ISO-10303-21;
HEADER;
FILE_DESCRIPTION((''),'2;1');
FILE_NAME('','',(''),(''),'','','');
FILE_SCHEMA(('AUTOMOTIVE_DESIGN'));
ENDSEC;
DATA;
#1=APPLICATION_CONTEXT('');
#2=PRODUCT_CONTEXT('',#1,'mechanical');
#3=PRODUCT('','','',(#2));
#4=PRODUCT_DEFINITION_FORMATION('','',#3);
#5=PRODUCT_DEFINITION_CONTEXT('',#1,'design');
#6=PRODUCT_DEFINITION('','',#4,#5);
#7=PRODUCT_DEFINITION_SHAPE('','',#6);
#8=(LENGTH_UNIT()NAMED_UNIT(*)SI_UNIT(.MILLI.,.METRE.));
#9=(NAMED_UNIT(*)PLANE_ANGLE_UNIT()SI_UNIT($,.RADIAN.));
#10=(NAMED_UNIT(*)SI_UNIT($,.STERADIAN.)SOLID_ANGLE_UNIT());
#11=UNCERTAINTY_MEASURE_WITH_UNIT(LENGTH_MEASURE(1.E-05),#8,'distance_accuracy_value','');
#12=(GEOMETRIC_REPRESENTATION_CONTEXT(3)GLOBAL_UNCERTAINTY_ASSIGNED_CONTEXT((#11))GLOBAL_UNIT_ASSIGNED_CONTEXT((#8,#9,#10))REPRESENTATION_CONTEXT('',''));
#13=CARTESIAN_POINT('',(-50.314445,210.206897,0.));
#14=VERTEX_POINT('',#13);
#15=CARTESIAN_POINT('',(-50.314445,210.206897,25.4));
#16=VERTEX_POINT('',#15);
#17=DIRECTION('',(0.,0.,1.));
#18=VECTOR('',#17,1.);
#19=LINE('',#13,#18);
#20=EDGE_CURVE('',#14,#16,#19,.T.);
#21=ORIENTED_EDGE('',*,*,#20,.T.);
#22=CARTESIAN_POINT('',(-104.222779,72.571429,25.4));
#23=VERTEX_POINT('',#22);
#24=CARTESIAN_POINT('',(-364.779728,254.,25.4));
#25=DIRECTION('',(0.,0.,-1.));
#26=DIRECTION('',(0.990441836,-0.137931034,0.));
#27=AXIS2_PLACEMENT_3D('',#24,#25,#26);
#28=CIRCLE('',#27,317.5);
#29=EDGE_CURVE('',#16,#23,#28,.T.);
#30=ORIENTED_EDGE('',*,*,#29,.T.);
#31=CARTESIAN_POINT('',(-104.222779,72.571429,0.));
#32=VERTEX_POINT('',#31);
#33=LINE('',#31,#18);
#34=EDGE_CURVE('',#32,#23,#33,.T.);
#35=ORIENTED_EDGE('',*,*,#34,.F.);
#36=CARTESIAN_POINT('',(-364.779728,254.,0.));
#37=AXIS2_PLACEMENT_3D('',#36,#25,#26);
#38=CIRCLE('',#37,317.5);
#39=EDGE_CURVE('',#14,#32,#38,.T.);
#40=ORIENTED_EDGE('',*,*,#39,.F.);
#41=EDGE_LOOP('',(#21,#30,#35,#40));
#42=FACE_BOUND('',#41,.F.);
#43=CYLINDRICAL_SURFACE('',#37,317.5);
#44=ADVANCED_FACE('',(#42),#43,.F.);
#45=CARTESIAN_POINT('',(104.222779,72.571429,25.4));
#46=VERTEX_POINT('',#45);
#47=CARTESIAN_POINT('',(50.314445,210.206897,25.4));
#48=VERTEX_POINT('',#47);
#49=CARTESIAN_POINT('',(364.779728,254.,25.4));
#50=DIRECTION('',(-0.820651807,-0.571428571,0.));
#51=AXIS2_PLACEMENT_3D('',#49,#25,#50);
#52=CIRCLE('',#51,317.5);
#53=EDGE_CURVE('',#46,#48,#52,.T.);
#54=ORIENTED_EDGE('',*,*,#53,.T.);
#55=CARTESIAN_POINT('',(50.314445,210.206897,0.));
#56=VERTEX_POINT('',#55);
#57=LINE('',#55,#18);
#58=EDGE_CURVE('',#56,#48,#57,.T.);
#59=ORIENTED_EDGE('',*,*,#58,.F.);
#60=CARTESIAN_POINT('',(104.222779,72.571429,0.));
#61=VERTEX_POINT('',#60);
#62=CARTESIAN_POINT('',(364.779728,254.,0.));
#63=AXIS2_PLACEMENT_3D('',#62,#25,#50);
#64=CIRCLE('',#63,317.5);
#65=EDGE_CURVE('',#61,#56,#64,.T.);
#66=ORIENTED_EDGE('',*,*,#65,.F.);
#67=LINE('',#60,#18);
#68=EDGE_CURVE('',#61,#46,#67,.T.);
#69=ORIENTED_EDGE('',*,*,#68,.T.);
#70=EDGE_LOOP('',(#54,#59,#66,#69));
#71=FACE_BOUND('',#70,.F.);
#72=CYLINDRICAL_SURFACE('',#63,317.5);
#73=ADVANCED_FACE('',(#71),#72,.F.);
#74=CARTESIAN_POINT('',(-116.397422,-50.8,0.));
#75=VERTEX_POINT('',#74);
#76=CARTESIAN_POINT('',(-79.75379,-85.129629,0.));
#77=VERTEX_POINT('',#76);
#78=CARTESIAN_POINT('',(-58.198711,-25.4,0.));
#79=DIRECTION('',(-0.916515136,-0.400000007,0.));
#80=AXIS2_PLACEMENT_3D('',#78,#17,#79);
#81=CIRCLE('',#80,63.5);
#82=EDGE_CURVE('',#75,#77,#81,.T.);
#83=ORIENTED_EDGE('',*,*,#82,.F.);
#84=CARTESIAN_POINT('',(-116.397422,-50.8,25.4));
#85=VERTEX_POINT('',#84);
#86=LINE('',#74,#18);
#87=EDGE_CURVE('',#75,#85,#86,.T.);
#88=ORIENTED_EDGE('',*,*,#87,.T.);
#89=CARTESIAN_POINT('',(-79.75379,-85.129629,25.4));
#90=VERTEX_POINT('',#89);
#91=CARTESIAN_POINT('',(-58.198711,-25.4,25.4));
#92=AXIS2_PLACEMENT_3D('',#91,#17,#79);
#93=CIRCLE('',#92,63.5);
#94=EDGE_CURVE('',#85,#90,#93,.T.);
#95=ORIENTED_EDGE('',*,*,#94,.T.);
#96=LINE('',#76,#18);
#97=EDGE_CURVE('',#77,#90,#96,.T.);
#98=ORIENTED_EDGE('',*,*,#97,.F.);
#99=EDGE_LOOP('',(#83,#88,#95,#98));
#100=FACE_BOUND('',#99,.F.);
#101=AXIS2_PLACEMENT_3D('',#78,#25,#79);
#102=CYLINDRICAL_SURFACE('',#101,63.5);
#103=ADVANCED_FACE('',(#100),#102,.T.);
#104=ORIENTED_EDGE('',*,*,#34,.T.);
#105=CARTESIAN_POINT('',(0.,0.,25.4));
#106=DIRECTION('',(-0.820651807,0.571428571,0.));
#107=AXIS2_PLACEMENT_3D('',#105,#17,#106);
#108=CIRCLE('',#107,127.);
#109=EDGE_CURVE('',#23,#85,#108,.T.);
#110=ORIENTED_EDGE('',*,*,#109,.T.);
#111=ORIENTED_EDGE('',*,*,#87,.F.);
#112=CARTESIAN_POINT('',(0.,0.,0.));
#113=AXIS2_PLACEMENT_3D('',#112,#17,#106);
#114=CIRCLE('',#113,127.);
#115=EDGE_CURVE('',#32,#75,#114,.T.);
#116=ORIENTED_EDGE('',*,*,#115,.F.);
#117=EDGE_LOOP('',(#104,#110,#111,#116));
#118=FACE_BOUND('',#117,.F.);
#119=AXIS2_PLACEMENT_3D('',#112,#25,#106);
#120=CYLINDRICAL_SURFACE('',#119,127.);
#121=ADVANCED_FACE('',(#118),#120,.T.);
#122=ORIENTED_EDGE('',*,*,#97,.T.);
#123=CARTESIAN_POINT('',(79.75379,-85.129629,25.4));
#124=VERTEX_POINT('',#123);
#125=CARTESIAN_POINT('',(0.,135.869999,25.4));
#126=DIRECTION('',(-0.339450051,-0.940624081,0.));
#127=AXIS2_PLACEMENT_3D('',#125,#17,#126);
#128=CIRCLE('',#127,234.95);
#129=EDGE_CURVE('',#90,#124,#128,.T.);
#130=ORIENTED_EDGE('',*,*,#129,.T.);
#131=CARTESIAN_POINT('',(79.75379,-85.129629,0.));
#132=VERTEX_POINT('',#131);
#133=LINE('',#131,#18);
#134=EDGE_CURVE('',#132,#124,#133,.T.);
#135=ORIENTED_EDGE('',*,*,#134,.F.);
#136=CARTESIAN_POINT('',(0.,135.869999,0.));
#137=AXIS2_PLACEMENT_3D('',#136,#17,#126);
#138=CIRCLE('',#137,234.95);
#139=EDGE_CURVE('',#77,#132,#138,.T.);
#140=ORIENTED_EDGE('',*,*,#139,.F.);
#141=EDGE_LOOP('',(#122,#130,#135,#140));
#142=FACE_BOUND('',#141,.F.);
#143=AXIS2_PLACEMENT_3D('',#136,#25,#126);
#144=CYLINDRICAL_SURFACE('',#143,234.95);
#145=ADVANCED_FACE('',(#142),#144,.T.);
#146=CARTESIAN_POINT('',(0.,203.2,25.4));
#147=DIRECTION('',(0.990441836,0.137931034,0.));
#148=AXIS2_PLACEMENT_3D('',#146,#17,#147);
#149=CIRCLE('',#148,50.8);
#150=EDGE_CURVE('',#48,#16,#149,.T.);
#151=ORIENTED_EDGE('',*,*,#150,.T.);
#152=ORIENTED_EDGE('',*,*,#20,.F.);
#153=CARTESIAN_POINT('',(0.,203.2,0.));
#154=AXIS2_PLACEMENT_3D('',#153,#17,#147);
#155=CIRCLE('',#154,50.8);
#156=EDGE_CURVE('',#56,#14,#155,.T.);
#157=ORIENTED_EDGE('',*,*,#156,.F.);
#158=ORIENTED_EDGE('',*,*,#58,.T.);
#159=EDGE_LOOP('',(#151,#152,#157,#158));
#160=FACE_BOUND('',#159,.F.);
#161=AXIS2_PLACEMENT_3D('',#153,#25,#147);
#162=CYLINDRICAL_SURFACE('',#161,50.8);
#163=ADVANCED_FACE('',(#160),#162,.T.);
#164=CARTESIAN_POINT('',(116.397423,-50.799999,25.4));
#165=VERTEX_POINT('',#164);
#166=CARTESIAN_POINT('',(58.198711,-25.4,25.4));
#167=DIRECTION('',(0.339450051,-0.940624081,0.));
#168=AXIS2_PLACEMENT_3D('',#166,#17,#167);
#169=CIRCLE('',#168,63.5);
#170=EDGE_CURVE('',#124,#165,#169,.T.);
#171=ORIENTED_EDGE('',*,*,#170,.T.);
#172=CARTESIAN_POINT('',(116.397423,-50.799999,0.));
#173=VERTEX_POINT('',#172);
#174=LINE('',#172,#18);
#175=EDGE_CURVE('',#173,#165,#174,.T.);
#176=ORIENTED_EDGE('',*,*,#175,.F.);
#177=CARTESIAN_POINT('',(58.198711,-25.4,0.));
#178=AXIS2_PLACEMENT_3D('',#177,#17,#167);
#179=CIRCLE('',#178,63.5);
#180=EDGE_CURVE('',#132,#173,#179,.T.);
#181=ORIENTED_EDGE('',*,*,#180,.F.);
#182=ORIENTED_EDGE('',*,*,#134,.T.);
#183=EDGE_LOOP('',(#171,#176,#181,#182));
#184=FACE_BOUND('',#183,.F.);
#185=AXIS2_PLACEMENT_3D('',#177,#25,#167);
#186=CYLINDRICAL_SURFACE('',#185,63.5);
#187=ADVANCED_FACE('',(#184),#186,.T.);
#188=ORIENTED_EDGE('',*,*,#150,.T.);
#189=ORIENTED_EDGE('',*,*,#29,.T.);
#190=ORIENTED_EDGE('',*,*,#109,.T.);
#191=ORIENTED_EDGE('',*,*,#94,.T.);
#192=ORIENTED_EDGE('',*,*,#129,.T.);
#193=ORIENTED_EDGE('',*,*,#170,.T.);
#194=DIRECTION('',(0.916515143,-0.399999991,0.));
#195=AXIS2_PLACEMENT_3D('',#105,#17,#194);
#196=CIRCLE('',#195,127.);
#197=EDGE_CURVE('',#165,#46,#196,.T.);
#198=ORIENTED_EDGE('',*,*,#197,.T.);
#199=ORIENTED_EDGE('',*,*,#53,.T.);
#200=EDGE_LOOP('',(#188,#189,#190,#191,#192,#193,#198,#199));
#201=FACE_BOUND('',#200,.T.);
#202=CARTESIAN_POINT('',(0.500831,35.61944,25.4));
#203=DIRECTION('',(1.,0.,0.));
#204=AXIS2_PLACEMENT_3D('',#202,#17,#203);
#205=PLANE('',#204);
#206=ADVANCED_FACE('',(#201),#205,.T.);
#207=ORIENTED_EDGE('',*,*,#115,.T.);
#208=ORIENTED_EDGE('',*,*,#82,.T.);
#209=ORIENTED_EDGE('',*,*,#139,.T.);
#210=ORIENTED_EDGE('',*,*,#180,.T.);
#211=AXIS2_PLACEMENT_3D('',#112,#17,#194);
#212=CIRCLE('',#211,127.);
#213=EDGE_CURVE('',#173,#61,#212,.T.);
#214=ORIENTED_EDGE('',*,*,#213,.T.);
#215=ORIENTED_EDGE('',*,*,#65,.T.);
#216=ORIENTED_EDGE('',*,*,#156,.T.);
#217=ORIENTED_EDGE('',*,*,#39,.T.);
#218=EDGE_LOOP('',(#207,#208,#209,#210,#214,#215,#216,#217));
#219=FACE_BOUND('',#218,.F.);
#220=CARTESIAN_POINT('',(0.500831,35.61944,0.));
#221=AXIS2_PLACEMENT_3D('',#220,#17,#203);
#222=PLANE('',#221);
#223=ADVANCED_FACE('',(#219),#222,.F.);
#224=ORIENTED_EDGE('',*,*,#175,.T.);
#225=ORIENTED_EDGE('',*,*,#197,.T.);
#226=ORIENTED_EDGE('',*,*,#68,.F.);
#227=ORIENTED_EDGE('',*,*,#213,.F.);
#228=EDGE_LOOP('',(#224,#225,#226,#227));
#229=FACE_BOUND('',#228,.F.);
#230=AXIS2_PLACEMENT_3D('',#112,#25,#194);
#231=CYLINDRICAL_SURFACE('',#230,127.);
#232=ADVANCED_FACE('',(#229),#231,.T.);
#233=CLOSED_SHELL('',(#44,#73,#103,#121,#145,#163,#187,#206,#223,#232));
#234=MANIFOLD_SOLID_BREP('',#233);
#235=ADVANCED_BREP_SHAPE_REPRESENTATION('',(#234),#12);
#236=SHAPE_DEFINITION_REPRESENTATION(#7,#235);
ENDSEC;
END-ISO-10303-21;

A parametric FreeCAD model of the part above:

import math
import FreeCAD as App
import Part
import Sketcher
from FreeCAD import Vector
Q = App.Units.Quantity

doc = App.newDocument("Part")
body = doc.addObject("PartDesign::Body", "Body")

# Sketch on XY plane
sketch1 = doc.addObject("Sketcher::SketchObject", "Sketch")
body.addObject(sketch1)
sketch1.AttachmentSupport = (doc.XY_Plane, [""])
sketch1.MapMode = "FlatFace"
sketch1.addGeometry(Part.ArcOfCircle(Part.Circle(Vector(0, 0, 0), Vector(0, 0, 1), 127), math.radians(-24), math.radians(35)), False)
sketch1.addGeometry(Part.ArcOfCircle(Part.Circle(Vector(365, 254, 0), Vector(0, 0, 1), 318), math.radians(-172), math.radians(-145)), False)
sketch1.addGeometry(Part.ArcOfCircle(Part.Circle(Vector(0, 203, 0), Vector(0, 0, 1), 51), math.radians(8), math.radians(172)), False)
sketch1.addGeometry(Part.ArcOfCircle(Part.Circle(Vector(-365, 254, 0), Vector(0, 0, 1), 318), math.radians(-35), math.radians(-8)), False)
sketch1.addGeometry(Part.ArcOfCircle(Part.Circle(Vector(0, 0, 0), Vector(0, 0, 1), 127), math.radians(145), math.radians(204)), False)
sketch1.addGeometry(Part.ArcOfCircle(Part.Circle(Vector(-58, -25, 0), Vector(0, 0, 1), 63), math.radians(-156), math.radians(-110)), False)
sketch1.addGeometry(Part.ArcOfCircle(Part.Circle(Vector(0, 136, 0), Vector(0, 0, 1), 235), math.radians(-110), math.radians(-70)), False)
sketch1.addGeometry(Part.ArcOfCircle(Part.Circle(Vector(58, -25, 0), Vector(0, 0, 1), 64), math.radians(-70), math.radians(-24)), False)
sketch1.addConstraint(Sketcher.Constraint("Tangent", 0, 2, 1, 2))
sketch1.addConstraint(Sketcher.Constraint("Tangent", 1, 1, 2, 1))
sketch1.addConstraint(Sketcher.Constraint("Tangent", 2, 2, 3, 2))
sketch1.addConstraint(Sketcher.Constraint("Tangent", 3, 1, 4, 1))
sketch1.addConstraint(Sketcher.Constraint("Tangent", 4, 2, 5, 1))
sketch1.addConstraint(Sketcher.Constraint("Tangent", 5, 2, 6, 1))
sketch1.addConstraint(Sketcher.Constraint("Tangent", 6, 2, 7, 1))
sketch1.addConstraint(Sketcher.Constraint("Tangent", 7, 2, 0, 1))
sketch1.addConstraint(Sketcher.Constraint("Coincident", 0, 3, -1, 1))
sketch1.addConstraint(Sketcher.Constraint("Coincident", 4, 3, -1, 1))
sketch1.addConstraint(Sketcher.Constraint("Equal", 1, 3))
sketch1.addConstraint(Sketcher.Constraint("Equal", 0, 4))
sketch1.addConstraint(Sketcher.Constraint("Equal", 5, 7))
sketch1.addConstraint(Sketcher.Constraint("PointOnObject", 2, 3, -2))
sketch1.addConstraint(Sketcher.Constraint("PointOnObject", 6, 3, -2))
sketch1.addConstraint(Sketcher.Constraint("Radius", 0, Q("5 in")))
sketch1.addConstraint(Sketcher.Constraint("Radius", 2, Q("2 in")))
sketch1.addConstraint(Sketcher.Constraint("Radius", 1, Q("12.5 in")))
sketch1.addConstraint(Sketcher.Constraint("Radius", 5, Q("2.5 in")))
sketch1.addConstraint(Sketcher.Constraint("Radius", 6, Q("9.25 in")))
sketch1.addConstraint(Sketcher.Constraint("DistanceY", -1, 1, 1, 3, Q("10 in")))
sketch1.addConstraint(Sketcher.Constraint("DistanceY", 5, 3, -1, 1, Q("1 in")))
pad1 = doc.addObject("PartDesign::Pad", "Pad")
body.addObject(pad1)
pad1.Profile = sketch1
pad1.Length = Q("1 in")

doc.recompute()
